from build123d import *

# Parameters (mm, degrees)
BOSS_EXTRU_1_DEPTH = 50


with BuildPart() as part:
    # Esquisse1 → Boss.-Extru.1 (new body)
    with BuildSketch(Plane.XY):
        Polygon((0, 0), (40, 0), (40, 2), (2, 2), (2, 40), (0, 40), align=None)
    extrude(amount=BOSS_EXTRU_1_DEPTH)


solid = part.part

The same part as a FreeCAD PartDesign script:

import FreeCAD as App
import Part
import Sketcher

V = App.Vector
Q = App.Units.Quantity


def add_polygon(sketch, points):
    """Adds a closed chain of lines whose ends are joined by coincident constraints."""
    first, n = sketch.GeometryCount, len(points)
    for a, b in zip(points, points[1:] + points[:1]):
        sketch.addGeometry(Part.LineSegment(App.Vector(*a, 0), App.Vector(*b, 0)), False)
    for i in range(n):
        sketch.addConstraint(Sketcher.Constraint("Coincident", first + i, 2, first + (i + 1) % n, 1))

doc = App.newDocument("Part")
body = doc.addObject("PartDesign::Body", "Body")

# Sketch on XY plane
sketch1 = body.newObject("Sketcher::SketchObject", "Sketch")
sketch1.AttachmentSupport = (doc.getObject("XY_Plane"), [""])
sketch1.MapMode = "FlatFace"
add_polygon(sketch1, [(0, 0), (40, 0), (40, 2), (2, 2), (2, 40), (0, 40)])  # lines 0-5
sketch1.addConstraint([
    Sketcher.Constraint("Horizontal", 0),
    Sketcher.Constraint("Vertical", 1),
    Sketcher.Constraint("Horizontal", 2),
    Sketcher.Constraint("Vertical", 3),
    Sketcher.Constraint("Horizontal", 4),
    Sketcher.Constraint("Vertical", 5),
    Sketcher.Constraint("Coincident", 5, 2, -1, 1),
    Sketcher.Constraint("Equal", 4, 1),
    Sketcher.Constraint("Equal", 2, 3),
    Sketcher.Constraint("DistanceX", 0, 1, 0, 2, Q("40 mm")),
    Sketcher.Constraint("DistanceX", 2, 2, 2, 1, Q("38 mm")),
])
pad1 = body.newObject("PartDesign::Pad", "Pad")
pad1.Profile = sketch1
pad1.Length = 50

doc.recompute()
